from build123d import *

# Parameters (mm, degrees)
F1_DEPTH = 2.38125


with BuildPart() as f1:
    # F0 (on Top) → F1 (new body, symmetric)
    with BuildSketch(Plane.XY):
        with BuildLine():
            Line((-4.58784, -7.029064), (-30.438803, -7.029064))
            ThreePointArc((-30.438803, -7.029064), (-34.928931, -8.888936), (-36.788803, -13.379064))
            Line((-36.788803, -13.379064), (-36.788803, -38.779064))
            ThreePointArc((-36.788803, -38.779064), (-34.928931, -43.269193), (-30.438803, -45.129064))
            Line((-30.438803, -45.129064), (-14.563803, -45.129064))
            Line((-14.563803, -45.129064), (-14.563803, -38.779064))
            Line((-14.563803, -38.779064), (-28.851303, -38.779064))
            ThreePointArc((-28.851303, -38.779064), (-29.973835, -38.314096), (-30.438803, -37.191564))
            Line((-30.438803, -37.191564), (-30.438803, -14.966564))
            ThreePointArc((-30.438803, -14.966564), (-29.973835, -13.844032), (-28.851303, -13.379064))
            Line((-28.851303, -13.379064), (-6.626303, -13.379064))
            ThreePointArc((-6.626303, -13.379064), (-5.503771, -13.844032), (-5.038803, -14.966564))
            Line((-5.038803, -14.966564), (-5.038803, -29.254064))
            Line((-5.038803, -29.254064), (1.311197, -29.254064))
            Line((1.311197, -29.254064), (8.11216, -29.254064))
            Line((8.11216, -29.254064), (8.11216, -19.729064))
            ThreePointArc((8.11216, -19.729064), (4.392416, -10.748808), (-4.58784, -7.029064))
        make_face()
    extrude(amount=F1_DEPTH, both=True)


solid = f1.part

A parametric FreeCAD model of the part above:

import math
import FreeCAD as App
import Part
import Sketcher
Q = App.Units.Quantity

doc = App.newDocument("Part")
body = doc.addObject("PartDesign::Body", "Body")

# Sketch on XY plane
sketch1 = body.newObject("Sketcher::SketchObject", "Sketch")
sketch1.AttachmentSupport = (doc.getObject("XY_Plane"), [""])
sketch1.MapMode = "FlatFace"
sketch1.addGeometry([
    Part.LineSegment(App.Vector(-4.6, -7, 0), App.Vector(-30.4, -7, 0)),  # 0
    Part.ArcOfCircle(Part.Circle(App.Vector(-30.4, -13.4, 0), App.Vector(0, 0, 1), 6.4), math.radians(90), math.radians(180)),  # 1
    Part.LineSegment(App.Vector(-36.8, -13.4, 0), App.Vector(-36.8, -38.8, 0)),  # 2
    Part.ArcOfCircle(Part.Circle(App.Vector(-30.4, -38.8, 0), App.Vector(0, 0, 1), 6.3), math.radians(180), math.radians(270)),  # 3
    Part.LineSegment(App.Vector(-30.4, -45.1, 0), App.Vector(-14.6, -45.1, 0)),  # 4
    Part.LineSegment(App.Vector(-14.6, -45.1, 0), App.Vector(-14.6, -38.8, 0)),  # 5
    Part.LineSegment(App.Vector(-14.6, -38.8, 0), App.Vector(-28.9, -38.8, 0)),  # 6
    Part.ArcOfCircle(Part.Circle(App.Vector(-28.9, -37.2, 0), App.Vector(0, 0, 1), 1.6), math.radians(-180), math.radians(-90)),  # 7
    Part.LineSegment(App.Vector(-30.4, -37.2, 0), App.Vector(-30.4, -15, 0)),  # 8
    Part.ArcOfCircle(Part.Circle(App.Vector(-28.9, -15, 0), App.Vector(0, 0, 1), 1.6), math.radians(90), math.radians(180)),  # 9
    Part.LineSegment(App.Vector(-28.9, -13.4, 0), App.Vector(-6.6, -13.4, 0)),  # 10
    Part.ArcOfCircle(Part.Circle(App.Vector(-6.6, -15, 0), App.Vector(0, 0, 1), 1.6), math.radians(0), math.radians(90)),  # 11
    Part.LineSegment(App.Vector(-5, -15, 0), App.Vector(-5, -29.3, 0)),  # 12
    Part.LineSegment(App.Vector(-5, -29.3, 0), App.Vector(8.1, -29.3, 0)),  # 13
    Part.LineSegment(App.Vector(8.1, -29.3, 0), App.Vector(8.1, -19.7, 0)),  # 14
    Part.ArcOfCircle(Part.Circle(App.Vector(-4.6, -19.7, 0), App.Vector(0, 0, 1), 12.7), math.radians(0), math.radians(90)),  # 15
], False)
sketch1.addConstraint([
    Sketcher.Constraint("Tangent", 0, 2, 1, 1),
    Sketcher.Constraint("Tangent", 1, 2, 2, 1),
    Sketcher.Constraint("Tangent", 2, 2, 3, 1),
    Sketcher.Constraint("Tangent", 3, 2, 4, 1),
    Sketcher.Constraint("Coincident", 4, 2, 5, 1),
    Sketcher.Constraint("Coincident", 5, 2, 6, 1),
    Sketcher.Constraint("Tangent", 6, 2, 7, 2),
    Sketcher.Constraint("Tangent", 7, 1, 8, 1),
    Sketcher.Constraint("Tangent", 8, 2, 9, 2),
    Sketcher.Constraint("Tangent", 9, 1, 10, 1),
    Sketcher.Constraint("Tangent", 10, 2, 11, 2),
    Sketcher.Constraint("Tangent", 11, 1, 12, 1),
    Sketcher.Constraint("Coincident", 12, 2, 13, 1),
    Sketcher.Constraint("Coincident", 13, 2, 14, 1),
    Sketcher.Constraint("Tangent", 14, 2, 15, 1),
    Sketcher.Constraint("Tangent", 15, 2, 0, 1),
    Sketcher.Constraint("Horizontal", 0),
    Sketcher.Constraint("Vertical", 2),
    Sketcher.Constraint("Horizontal", 4),
    Sketcher.Constraint("Vertical", 5),
    Sketcher.Constraint("Horizontal", 6),
    Sketcher.Constraint("Vertical", 8),
    Sketcher.Constraint("Horizontal", 10),
    Sketcher.Constraint("Vertical", 12),
    Sketcher.Constraint("Horizontal", 13),
    Sketcher.Constraint("Vertical", 14),
    Sketcher.Constraint("Equal", 1, 3),
    Sketcher.Constraint("Equal", 7, 9),
    Sketcher.Constraint("Equal", 9, 11),
    Sketcher.Constraint("Horizontal", 2, 2, 5, 2),
    Sketcher.Constraint("Horizontal", 1, 2, 9, 1),
    Sketcher.Constraint("Vertical", 3, 2, 7, 1),
    Sketcher.Constraint("Equal", 10, 8),
    Sketcher.Constraint("Equal", 6, 12),
    Sketcher.Constraint("Radius", 15, Q("0.5 in")),
    Sketcher.Constraint("DistanceY", 2, 2, 2, 1, Q("1 in")),
    Sketcher.Constraint("Radius", 1, Q("0.25 in")),
    Sketcher.Constraint("Radius", 7, Q("0.0625 in")),
    Sketcher.Constraint("DistanceX", 4, 1, 4, 2, Q("0.625 in")),
    Sketcher.Constraint("DistanceX", 0, 2, 0, 1, Q("25.850963 mm")),
    Sketcher.Constraint("DistanceX", 15, 3, -1, 1, Q("4.58784 mm")),
    Sketcher.Constraint("DistanceY", 1, 3, -1, 1, Q("13.379064 mm")),
])
pad1 = body.newObject("PartDesign::Pad", "Pad")
pad1.Profile = sketch1
pad1.Length = Q("0.1875 in")
pad1.Midplane = True

doc.recompute()
